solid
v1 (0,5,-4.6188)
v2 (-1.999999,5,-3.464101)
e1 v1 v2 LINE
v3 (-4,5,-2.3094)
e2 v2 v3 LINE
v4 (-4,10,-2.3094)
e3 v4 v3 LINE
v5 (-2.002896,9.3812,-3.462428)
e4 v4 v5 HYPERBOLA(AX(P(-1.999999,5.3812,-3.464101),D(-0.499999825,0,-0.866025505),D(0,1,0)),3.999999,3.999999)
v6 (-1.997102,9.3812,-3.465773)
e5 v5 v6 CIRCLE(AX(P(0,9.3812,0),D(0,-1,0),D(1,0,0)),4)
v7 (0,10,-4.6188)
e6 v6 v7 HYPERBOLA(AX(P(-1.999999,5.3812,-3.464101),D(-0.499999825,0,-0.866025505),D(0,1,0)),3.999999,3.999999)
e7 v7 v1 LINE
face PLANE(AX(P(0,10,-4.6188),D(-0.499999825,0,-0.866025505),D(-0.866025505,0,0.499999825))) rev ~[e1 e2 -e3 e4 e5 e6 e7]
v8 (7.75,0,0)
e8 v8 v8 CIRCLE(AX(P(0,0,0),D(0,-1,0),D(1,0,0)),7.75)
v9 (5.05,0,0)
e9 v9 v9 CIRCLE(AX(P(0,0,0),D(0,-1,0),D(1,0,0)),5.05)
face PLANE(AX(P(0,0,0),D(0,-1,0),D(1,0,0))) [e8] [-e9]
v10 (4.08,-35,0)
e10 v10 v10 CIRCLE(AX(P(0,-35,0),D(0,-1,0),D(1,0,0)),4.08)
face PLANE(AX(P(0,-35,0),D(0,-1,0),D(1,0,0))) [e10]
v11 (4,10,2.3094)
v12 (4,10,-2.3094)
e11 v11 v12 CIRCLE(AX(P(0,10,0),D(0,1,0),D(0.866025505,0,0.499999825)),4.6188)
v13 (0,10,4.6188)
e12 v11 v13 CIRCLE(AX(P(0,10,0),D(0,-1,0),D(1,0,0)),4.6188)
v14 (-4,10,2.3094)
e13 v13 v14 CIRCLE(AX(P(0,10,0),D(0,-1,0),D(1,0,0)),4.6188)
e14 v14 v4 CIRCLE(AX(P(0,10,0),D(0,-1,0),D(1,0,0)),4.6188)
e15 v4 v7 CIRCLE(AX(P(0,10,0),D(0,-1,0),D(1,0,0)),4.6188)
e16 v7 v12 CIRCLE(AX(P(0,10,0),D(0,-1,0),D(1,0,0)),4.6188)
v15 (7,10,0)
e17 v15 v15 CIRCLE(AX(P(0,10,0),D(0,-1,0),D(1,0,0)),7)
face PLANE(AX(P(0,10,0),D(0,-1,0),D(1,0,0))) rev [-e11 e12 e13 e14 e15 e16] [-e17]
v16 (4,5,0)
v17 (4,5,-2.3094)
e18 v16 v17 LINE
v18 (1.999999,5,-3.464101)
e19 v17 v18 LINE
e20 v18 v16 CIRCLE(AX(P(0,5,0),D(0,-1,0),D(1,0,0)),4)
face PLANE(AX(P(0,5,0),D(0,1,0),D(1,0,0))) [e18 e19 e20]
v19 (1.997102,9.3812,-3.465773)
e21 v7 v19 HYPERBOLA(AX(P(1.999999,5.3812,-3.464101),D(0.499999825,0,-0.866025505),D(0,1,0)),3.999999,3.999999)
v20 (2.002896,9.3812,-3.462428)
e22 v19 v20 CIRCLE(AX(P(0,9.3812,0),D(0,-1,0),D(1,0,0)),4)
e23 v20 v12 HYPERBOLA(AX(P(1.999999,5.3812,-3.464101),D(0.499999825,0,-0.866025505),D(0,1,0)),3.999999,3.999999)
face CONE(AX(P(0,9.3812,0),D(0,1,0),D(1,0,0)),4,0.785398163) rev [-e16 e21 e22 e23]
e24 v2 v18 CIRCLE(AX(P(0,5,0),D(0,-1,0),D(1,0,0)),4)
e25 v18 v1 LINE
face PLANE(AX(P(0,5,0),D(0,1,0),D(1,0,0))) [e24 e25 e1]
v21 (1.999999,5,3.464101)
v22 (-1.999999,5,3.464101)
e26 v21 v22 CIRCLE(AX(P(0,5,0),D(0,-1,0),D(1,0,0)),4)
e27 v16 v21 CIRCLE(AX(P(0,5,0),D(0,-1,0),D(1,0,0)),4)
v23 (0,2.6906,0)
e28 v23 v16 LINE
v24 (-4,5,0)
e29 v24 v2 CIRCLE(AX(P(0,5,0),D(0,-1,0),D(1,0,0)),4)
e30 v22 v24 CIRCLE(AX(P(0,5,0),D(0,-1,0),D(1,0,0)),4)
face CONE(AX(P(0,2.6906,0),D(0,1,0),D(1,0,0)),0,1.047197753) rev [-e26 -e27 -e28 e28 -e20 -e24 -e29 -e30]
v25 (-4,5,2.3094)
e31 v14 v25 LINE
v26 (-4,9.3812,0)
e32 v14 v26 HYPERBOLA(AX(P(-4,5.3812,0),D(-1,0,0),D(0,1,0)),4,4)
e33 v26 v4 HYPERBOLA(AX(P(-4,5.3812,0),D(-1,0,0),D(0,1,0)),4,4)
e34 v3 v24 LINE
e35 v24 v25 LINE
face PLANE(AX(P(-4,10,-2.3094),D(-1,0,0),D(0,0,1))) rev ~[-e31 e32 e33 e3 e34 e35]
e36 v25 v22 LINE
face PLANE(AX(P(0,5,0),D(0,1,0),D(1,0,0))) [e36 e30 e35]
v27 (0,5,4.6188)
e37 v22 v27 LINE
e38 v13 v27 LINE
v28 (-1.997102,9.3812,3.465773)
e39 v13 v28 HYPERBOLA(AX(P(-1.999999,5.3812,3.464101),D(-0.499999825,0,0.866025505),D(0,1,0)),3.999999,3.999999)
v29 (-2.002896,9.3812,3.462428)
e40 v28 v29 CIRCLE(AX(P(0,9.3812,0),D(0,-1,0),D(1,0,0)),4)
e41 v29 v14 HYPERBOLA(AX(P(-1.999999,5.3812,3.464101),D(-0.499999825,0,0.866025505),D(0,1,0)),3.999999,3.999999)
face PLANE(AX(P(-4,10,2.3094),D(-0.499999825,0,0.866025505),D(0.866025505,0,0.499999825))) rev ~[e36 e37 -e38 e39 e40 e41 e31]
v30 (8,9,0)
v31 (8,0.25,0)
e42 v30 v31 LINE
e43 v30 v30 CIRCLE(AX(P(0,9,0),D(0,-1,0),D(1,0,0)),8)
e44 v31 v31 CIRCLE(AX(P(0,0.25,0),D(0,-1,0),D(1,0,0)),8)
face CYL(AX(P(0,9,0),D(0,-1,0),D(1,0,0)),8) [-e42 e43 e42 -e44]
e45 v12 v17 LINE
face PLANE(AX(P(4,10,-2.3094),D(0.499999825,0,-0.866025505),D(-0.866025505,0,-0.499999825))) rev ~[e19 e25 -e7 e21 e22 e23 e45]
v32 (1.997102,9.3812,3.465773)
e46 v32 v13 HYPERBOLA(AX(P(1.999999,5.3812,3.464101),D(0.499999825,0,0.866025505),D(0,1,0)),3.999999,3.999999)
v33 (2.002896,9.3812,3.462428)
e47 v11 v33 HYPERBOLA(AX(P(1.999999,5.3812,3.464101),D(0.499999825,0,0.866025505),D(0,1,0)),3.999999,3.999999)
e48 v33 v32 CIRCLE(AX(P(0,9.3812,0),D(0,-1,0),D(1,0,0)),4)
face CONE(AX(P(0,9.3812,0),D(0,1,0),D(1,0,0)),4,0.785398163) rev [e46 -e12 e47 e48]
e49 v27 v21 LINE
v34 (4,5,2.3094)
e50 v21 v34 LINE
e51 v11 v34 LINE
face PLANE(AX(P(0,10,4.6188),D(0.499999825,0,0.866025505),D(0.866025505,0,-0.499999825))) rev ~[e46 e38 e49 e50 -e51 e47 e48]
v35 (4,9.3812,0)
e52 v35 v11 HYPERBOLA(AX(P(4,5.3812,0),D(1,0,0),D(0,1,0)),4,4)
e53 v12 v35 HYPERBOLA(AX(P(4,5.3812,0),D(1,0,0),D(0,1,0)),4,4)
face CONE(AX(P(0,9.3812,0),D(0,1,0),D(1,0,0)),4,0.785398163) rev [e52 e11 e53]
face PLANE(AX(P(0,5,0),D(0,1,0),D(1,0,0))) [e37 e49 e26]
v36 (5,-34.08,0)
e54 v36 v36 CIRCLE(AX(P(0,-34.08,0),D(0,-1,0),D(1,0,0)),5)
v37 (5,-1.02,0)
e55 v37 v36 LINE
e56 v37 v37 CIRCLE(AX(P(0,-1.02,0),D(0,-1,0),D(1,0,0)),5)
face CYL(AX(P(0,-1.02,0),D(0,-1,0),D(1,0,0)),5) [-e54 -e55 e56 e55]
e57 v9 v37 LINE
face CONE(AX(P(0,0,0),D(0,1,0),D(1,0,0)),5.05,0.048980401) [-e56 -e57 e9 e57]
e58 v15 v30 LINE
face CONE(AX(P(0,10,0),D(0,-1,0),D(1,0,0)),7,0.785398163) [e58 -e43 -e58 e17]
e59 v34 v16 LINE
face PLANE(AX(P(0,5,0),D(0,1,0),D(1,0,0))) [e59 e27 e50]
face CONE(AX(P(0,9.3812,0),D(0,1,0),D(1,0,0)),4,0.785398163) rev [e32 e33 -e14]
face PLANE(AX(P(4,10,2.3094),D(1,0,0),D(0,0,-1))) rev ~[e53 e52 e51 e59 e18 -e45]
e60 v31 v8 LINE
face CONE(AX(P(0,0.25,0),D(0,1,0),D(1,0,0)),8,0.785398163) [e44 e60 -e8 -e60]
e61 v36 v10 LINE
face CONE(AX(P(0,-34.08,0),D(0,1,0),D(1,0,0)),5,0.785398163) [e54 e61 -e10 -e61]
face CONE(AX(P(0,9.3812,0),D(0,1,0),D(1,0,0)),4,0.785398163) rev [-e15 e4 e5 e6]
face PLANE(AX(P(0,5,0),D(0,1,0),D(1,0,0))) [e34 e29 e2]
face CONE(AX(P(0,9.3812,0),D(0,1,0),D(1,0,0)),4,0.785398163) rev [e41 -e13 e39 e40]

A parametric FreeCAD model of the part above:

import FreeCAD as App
import Part
import Sketcher

V = App.Vector
Q = App.Units.Quantity

doc = App.newDocument("Part")
body = doc.addObject("PartDesign::Body", "Body")

sketch1 = body.newObject("Sketcher::SketchObject", "Sketch")
sketch1.AttachmentSupport = (doc.getObject("XY_Plane"), [""])
sketch1.MapMode = "FlatFace"
sketch1.addGeometry(Part.LineSegment(V(0, 2.69, 0), V(0, -35, 0)), False)
sketch1.addGeometry(Part.LineSegment(V(0, -35, 0), V(4.08, -35, 0)), False)
sketch1.addGeometry(Part.LineSegment(V(4.08, -35, 0), V(5, -34.08, 0)), False)
sketch1.addGeometry(Part.LineSegment(V(5, -34.08, 0), V(5, -1.02, 0)), False)
sketch1.addGeometry(Part.LineSegment(V(5, -1.02, 0), V(5.05, 0, 0)), False)
sketch1.addGeometry(Part.LineSegment(V(5.05, 0, 0), V(7.75, 0, 0)), False)
sketch1.addGeometry(Part.LineSegment(V(7.75, 0, 0), V(8, 0.25, 0)), False)
sketch1.addGeometry(Part.LineSegment(V(8, 0.25, 0), V(8, 9, 0)), False)
sketch1.addGeometry(Part.LineSegment(V(8, 9, 0), V(7, 10, 0)), False)
sketch1.addGeometry(Part.LineSegment(V(7, 10, 0), V(4.62, 10, 0)), False)
sketch1.addGeometry(Part.LineSegment(V(4.62, 10, 0), V(4, 9.38, 0)), False)
sketch1.addGeometry(Part.LineSegment(V(4, 9.38, 0), V(4, 5, 0)), False)
sketch1.addGeometry(Part.LineSegment(V(4, 5, 0), V(0, 2.69, 0)), False)
sketch1.addConstraint(Sketcher.Constraint("Coincident", 0, 2, 1, 1))
sketch1.addConstraint(Sketcher.Constraint("Coincident", 1, 2, 2, 1))
sketch1.addConstraint(Sketcher.Constraint("Coincident", 2, 2, 3, 1))
sketch1.addConstraint(Sketcher.Constraint("Coincident", 3, 2, 4, 1))
sketch1.addConstraint(Sketcher.Constraint("Coincident", 4, 2, 5, 1))
sketch1.addConstraint(Sketcher.Constraint("Coincident", 5, 2, 6, 1))
sketch1.addConstraint(Sketcher.Constraint("Coincident", 6, 2, 7, 1))
sketch1.addConstraint(Sketcher.Constraint("Coincident", 7, 2, 8, 1))
sketch1.addConstraint(Sketcher.Constraint("Coincident", 8, 2, 9, 1))
sketch1.addConstraint(Sketcher.Constraint("Coincident", 9, 2, 10, 1))
sketch1.addConstraint(Sketcher.Constraint("Coincident", 10, 2, 11, 1))
sketch1.addConstraint(Sketcher.Constraint("Coincident", 11, 2, 12, 1))
sketch1.addConstraint(Sketcher.Constraint("Coincident", 12, 2, 0, 1))
sketch1.addConstraint(Sketcher.Constraint("Vertical", 0))
sketch1.addConstraint(Sketcher.Constraint("Horizontal", 1))
sketch1.addConstraint(Sketcher.Constraint("Vertical", 3))
sketch1.addConstraint(Sketcher.Constraint("Horizontal", 5))
sketch1.addConstraint(Sketcher.Constraint("Vertical", 7))
sketch1.addConstraint(Sketcher.Constraint("Horizontal", 9))
sketch1.addConstraint(Sketcher.Constraint("Vertical", 11))
sketch1.addConstraint(Sketcher.Constraint("PointOnObject", 0, 2, -2))
sketch1.addConstraint(Sketcher.Constraint("PointOnObject", 4, 2, -1))
sketch1.addConstraint(Sketcher.Constraint("Parallel", 2, 6))
sketch1.addConstraint(Sketcher.Constraint("Perpendicular", 6, 8))
sketch1.addConstraint(Sketcher.Constraint("Perpendicular", 8, 10))
sketch1.addConstraint(Sketcher.Constraint("Angle", 2, Q("45 deg")))
sketch1.addConstraint(Sketcher.Constraint("Angle", 12, Q("-150 deg")))
sketch1.addConstraint(Sketcher.Constraint("DistanceX", 5, 1, 5, 2, 2.7))
sketch1.addConstraint(Sketcher.Constraint("DistanceY", 0, 2, -1, 1, 35.0))
sketch1.addConstraint(Sketcher.Constraint("DistanceX", -1, 1, 2, 2, 5.0))
sketch1.addConstraint(Sketcher.Constraint("DistanceX", -1, 1, 6, 2, 8.0))
sketch1.addConstraint(Sketcher.Constraint("DistanceY", -1, 1, 7, 2, 9.0))
sketch1.addConstraint(Sketcher.Constraint("DistanceX", -1, 1, 8, 2, 7.0))
sketch1.addConstraint(Sketcher.Constraint("DistanceX", -1, 1, 10, 2, 4.0))
sketch1.addConstraint(Sketcher.Constraint("DistanceY", -1, 1, 11, 2, 5.0))
sketch1.addConstraint(Sketcher.Constraint("DistanceX", 1, 1, 1, 2, 4.08))
sketch1.addConstraint(Sketcher.Constraint("DistanceY", 3, 1, 3, 2, 33.06))
sketch1.addConstraint(Sketcher.Constraint("DistanceY", 7, 1, 7, 2, 8.75))
sketch1.addConstraint(Sketcher.Constraint("Distance", 10, 0.875))
revolution = body.newObject("PartDesign::Revolution", "Revolution")
revolution.Profile = sketch1
revolution.ReferenceAxis = (sketch1, ["V_Axis"])
revolution.Angle = 360

sketch2 = body.newObject("Sketcher::SketchObject", "Sketch001")
sketch2.AttachmentSupport = (doc.getObject("XZ_Plane"), [""])
sketch2.MapMode = "FlatFace"
sketch2.AttachmentOffset = App.Placement(V(0, 0, -10), App.Rotation())
sketch2.addGeometry(Part.LineSegment(V(-4, -2.3, 0), V(-4, 2.3, 0)), False)
sketch2.addGeometry(Part.LineSegment(V(-4, 2.3, 0), V(0, 4.6, 0)), False)
sketch2.addGeometry(Part.LineSegment(V(0, 4.6, 0), V(4, 2.3, 0)), False)
sketch2.addGeometry(Part.LineSegment(V(4, 2.3, 0), V(4, -2.3, 0)), False)
sketch2.addGeometry(Part.LineSegment(V(4, -2.3, 0), V(0, -4.6, 0)), False)
sketch2.addGeometry(Part.LineSegment(V(0, -4.6, 0), V(-4, -2.3, 0)), False)
sketch2.addConstraint(Sketcher.Constraint("Coincident", 0, 2, 1, 1))
sketch2.addConstraint(Sketcher.Constraint("Coincident", 1, 2, 2, 1))
sketch2.addConstraint(Sketcher.Constraint("Coincident", 2, 2, 3, 1))
sketch2.addConstraint(Sketcher.Constraint("Coincident", 3, 2, 4, 1))
sketch2.addConstraint(Sketcher.Constraint("Coincident", 4, 2, 5, 1))
sketch2.addConstraint(Sketcher.Constraint("Coincident", 5, 2, 0, 1))
sketch2.addConstraint(Sketcher.Constraint("Vertical", 0))
sketch2.addConstraint(Sketcher.Constraint("Vertical", 3))
sketch2.addConstraint(Sketcher.Constraint("Symmetric", 0, 2, 3, 2, -1, 1))
sketch2.addConstraint(Sketcher.Constraint("Symmetric", 1, 2, 4, 2, -1, 1))
sketch2.addConstraint(Sketcher.Constraint("PointOnObject", 1, 2, -2))
sketch2.addConstraint(Sketcher.Constraint("Parallel", 2, 5))
sketch2.addConstraint(Sketcher.Constraint("Horizontal", 0, 2, 2, 2))
sketch2.addConstraint(Sketcher.Constraint("Angle", 1, Q("30 deg")))
sketch2.addConstraint(Sketcher.Constraint("DistanceX", 0, 2, -1, 1, 4.0))
sketch2.addConstraint(Sketcher.Constraint("DistanceY", 0, 1, 0, 2, 4.6188))
pocket1 = body.newObject("PartDesign::Pocket", "Pocket")
pocket1.Profile = sketch2
pocket1.Length = 5
pocket1.Reversed = True

doc.recompute()
